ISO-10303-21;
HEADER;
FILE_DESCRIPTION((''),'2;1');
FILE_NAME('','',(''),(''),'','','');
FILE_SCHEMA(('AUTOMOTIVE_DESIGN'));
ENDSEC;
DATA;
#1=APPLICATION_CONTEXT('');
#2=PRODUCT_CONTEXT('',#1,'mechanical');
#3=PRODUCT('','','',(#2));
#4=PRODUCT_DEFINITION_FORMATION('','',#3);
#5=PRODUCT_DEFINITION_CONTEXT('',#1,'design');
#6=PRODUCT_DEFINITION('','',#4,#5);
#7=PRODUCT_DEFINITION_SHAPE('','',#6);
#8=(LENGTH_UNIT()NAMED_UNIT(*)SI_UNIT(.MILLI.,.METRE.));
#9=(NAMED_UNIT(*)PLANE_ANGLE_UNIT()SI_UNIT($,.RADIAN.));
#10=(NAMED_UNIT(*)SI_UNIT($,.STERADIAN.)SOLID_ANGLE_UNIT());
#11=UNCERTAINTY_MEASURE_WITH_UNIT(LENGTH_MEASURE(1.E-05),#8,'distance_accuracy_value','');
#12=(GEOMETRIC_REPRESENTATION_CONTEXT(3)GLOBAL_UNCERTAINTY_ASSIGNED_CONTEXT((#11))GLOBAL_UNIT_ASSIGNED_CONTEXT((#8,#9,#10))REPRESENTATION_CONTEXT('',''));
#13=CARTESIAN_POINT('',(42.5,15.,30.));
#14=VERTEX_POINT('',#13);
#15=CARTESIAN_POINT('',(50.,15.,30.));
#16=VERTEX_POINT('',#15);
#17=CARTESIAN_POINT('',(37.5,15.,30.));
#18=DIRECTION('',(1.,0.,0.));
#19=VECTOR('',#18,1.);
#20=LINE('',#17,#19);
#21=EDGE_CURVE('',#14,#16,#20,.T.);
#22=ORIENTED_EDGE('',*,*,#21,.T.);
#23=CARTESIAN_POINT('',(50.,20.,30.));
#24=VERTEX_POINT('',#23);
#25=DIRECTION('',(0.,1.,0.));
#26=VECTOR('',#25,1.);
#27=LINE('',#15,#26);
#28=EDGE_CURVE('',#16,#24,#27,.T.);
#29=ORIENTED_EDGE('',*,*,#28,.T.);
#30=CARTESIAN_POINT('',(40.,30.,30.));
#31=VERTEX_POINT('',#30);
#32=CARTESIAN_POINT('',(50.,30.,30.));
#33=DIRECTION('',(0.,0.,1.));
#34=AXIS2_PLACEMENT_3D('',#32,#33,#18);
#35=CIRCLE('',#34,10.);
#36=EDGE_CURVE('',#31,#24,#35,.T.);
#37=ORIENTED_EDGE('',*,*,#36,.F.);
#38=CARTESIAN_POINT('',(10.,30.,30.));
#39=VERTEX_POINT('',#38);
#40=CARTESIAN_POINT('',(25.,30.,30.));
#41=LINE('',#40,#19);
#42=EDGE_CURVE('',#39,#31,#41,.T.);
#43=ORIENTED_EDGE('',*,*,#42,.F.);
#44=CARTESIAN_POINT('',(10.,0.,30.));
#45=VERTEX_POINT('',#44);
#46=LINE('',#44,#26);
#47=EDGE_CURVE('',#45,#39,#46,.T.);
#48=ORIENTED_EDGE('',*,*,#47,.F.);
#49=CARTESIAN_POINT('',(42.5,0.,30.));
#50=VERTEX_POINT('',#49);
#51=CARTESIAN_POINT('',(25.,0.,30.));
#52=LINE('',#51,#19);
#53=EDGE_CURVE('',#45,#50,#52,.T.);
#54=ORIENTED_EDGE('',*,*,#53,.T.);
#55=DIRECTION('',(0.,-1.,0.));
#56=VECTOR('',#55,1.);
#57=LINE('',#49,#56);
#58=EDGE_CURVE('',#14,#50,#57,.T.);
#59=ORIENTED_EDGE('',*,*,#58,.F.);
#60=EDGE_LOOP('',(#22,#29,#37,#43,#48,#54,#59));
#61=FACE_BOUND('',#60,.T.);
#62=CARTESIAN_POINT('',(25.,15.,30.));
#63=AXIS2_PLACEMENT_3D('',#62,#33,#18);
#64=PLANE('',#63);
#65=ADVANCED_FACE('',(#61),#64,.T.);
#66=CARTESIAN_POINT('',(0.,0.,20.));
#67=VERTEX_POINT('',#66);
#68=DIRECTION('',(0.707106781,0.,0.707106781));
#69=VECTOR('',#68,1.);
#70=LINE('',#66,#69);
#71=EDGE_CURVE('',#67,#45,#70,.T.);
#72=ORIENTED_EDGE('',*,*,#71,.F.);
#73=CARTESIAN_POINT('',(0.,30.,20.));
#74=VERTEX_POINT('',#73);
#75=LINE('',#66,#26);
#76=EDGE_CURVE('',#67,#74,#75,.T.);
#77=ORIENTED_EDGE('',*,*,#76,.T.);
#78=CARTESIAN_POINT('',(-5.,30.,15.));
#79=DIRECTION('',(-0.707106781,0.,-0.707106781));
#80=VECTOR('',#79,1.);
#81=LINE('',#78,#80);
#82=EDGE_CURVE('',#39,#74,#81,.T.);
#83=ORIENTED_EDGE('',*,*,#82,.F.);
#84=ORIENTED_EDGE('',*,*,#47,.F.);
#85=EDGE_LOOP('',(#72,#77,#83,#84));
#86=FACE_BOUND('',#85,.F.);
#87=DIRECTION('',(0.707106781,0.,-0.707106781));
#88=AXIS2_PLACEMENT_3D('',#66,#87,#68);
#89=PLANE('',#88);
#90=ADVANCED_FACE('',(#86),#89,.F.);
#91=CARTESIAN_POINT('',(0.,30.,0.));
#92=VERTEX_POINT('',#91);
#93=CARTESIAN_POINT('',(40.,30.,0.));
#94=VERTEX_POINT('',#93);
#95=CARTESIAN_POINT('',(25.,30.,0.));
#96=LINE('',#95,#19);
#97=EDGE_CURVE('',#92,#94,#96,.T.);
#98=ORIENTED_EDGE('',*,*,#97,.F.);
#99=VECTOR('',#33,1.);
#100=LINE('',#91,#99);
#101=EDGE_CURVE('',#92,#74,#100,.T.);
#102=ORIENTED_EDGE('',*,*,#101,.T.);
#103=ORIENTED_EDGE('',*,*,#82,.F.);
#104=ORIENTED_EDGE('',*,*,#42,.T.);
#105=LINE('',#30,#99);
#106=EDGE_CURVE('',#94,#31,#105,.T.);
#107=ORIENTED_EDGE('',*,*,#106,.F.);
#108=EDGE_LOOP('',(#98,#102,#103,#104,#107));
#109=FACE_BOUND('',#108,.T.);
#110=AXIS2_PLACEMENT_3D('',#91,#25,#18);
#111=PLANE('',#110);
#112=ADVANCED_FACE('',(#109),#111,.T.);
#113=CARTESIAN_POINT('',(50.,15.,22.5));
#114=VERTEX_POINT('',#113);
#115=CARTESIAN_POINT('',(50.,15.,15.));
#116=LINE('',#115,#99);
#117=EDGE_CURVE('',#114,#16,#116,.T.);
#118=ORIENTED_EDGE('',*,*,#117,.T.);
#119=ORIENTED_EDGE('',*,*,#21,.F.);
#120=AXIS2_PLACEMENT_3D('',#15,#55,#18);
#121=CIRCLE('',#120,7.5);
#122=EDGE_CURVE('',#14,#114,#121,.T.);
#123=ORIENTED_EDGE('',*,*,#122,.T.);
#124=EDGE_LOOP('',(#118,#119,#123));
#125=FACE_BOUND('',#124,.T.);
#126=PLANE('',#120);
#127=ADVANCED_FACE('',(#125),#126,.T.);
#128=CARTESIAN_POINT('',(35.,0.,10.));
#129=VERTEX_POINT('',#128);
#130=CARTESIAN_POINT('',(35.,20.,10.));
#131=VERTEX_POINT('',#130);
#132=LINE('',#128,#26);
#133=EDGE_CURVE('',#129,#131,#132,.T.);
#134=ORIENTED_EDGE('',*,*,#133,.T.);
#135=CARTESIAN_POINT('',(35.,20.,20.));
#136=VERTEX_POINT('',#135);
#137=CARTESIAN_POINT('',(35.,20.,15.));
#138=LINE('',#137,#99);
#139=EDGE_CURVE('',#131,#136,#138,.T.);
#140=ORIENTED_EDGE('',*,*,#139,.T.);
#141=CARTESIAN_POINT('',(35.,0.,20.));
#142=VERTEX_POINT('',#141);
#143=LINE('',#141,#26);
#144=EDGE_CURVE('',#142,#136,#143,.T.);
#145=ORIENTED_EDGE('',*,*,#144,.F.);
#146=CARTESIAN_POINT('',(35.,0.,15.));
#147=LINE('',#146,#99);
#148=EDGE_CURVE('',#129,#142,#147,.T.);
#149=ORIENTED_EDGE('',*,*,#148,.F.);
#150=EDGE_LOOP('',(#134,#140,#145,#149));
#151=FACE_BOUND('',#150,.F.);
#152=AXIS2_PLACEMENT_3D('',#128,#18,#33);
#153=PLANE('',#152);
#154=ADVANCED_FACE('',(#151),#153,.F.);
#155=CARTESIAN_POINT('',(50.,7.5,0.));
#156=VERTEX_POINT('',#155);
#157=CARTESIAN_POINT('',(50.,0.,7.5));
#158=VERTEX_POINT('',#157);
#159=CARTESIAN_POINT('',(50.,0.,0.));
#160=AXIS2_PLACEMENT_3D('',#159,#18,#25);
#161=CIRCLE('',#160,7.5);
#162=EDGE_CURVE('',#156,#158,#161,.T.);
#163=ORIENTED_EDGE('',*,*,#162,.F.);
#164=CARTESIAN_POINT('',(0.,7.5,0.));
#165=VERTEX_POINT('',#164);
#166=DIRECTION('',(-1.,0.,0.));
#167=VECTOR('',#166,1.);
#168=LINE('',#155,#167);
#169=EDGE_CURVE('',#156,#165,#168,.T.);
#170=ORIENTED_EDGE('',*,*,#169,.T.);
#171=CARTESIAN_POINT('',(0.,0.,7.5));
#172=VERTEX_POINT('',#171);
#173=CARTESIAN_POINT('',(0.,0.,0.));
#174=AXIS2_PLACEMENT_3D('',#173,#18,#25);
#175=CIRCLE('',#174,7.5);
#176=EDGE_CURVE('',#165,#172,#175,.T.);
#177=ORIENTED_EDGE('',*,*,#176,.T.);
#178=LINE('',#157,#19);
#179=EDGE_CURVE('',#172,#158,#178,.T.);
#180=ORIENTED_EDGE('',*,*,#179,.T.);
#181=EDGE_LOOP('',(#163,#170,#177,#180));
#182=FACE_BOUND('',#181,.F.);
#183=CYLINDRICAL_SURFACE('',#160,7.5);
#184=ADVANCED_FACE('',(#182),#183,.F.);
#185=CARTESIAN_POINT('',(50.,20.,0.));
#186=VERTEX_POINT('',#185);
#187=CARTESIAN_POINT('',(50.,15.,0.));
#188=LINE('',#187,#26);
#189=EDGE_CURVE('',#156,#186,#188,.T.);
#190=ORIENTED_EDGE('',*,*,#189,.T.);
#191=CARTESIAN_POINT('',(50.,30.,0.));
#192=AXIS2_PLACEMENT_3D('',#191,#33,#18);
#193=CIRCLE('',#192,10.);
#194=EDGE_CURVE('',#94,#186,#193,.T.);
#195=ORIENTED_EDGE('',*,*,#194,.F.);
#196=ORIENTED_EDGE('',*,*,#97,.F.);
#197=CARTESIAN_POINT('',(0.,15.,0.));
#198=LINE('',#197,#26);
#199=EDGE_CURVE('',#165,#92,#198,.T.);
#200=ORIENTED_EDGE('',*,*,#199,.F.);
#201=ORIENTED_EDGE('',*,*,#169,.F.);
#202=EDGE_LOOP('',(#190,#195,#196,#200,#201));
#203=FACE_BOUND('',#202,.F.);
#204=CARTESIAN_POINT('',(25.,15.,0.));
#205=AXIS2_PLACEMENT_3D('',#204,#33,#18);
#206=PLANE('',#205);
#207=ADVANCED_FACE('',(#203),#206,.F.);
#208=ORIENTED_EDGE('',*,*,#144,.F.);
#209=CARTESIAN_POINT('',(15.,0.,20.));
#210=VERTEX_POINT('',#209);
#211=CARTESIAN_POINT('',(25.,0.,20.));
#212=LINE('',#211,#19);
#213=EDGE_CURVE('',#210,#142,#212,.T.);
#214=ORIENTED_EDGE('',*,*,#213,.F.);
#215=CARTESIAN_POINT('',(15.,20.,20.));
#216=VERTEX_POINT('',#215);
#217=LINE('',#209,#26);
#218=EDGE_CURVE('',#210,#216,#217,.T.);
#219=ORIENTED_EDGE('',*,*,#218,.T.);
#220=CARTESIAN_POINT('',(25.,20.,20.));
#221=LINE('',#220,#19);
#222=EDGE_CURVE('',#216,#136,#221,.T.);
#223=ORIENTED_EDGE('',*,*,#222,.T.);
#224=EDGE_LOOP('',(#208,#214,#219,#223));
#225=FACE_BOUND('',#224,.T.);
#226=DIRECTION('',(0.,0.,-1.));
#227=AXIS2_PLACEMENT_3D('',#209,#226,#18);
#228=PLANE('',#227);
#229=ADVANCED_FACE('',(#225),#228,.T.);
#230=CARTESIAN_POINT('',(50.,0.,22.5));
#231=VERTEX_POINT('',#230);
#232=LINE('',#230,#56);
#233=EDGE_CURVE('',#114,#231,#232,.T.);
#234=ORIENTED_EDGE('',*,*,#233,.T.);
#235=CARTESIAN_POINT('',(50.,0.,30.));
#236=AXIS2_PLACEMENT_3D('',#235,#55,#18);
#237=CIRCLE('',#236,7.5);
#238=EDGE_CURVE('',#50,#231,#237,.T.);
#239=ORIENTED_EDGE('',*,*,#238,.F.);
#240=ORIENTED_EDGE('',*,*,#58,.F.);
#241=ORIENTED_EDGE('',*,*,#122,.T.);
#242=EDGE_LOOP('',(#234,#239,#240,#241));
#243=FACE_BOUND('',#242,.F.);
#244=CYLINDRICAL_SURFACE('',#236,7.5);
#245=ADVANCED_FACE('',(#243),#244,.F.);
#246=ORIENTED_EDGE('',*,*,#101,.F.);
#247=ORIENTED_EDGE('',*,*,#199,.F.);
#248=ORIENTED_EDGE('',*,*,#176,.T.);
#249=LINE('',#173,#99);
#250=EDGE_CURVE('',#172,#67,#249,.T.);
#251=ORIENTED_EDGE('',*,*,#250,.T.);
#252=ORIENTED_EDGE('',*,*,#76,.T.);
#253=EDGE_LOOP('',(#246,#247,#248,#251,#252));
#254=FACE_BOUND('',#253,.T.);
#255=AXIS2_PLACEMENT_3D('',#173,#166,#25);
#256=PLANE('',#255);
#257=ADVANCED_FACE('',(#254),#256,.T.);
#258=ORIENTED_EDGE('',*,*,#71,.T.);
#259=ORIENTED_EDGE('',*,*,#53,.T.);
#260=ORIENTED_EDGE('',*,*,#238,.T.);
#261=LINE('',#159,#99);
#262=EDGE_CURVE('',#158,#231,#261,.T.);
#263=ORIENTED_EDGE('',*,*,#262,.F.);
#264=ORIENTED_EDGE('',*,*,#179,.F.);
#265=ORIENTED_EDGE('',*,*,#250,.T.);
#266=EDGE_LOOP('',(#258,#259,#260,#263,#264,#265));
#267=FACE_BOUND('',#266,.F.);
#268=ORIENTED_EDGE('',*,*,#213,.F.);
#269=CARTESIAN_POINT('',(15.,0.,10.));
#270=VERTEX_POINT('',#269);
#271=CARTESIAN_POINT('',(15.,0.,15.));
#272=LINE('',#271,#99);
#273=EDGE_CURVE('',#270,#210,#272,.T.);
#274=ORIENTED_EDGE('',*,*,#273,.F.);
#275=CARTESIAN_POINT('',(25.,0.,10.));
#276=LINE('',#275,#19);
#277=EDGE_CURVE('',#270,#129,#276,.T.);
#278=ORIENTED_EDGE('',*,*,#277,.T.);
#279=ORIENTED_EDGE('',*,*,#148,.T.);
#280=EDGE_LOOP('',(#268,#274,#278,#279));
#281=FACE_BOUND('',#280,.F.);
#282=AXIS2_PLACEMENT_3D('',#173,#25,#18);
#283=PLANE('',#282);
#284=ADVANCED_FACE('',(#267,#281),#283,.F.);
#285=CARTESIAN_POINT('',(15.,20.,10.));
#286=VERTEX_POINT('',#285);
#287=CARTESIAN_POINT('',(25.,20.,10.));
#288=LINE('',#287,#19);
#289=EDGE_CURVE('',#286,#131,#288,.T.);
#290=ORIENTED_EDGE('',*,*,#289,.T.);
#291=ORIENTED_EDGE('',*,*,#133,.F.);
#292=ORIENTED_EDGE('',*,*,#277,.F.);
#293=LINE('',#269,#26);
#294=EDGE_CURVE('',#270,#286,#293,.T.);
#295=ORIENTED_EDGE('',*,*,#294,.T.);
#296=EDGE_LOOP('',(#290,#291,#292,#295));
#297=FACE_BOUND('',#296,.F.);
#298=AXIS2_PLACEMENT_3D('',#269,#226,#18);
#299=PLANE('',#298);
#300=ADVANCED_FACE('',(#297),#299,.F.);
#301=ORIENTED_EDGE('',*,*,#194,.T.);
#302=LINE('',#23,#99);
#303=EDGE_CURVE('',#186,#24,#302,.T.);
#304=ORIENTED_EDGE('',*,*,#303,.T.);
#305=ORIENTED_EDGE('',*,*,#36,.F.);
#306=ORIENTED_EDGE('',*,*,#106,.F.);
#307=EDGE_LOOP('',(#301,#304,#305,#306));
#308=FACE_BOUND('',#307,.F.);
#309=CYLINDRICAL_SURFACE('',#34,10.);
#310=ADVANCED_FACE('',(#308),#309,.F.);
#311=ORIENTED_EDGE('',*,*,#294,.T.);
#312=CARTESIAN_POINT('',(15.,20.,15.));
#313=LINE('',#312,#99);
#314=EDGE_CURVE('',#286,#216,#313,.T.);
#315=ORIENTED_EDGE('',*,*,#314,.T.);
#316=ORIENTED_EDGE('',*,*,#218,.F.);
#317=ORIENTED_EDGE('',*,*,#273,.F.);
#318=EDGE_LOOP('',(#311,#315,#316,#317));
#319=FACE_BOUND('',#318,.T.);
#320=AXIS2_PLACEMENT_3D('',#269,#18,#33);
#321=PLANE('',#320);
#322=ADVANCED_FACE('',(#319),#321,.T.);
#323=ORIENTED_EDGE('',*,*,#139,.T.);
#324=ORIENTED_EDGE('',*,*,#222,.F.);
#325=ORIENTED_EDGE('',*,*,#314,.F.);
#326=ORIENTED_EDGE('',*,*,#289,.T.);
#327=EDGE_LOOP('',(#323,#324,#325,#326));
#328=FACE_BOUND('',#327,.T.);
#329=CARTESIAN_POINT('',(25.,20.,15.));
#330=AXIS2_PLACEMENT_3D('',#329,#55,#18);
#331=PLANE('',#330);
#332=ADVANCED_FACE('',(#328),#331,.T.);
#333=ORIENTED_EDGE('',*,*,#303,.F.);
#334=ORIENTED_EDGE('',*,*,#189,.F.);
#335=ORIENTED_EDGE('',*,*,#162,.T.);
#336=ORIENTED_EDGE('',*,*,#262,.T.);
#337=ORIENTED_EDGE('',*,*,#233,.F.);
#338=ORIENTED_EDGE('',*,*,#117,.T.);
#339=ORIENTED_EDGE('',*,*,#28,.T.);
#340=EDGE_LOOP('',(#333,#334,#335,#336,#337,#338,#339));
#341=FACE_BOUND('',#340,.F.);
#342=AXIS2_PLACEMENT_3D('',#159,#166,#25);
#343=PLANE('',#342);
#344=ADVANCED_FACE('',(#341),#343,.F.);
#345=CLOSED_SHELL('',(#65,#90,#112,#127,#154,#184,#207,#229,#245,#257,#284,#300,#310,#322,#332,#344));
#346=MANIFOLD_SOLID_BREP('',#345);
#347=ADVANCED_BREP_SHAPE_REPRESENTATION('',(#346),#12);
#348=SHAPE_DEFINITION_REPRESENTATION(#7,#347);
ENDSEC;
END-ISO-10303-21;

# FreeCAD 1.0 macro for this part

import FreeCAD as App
import Part
import Sketcher
Q = App.Units.Quantity


def add_polygon(sketch, points):
    """Adds a closed chain of lines whose ends are joined by coincident constraints."""
    first, n = sketch.GeometryCount, len(points)
    for a, b in zip(points, points[1:] + points[:1]):
        sketch.addGeometry(Part.LineSegment(App.Vector(*a, 0), App.Vector(*b, 0)), False)
    for i in range(n):
        sketch.addConstraint(Sketcher.Constraint("Coincident", first + i, 2, first + (i + 1) % n, 1))

doc = App.newDocument("Part")
body = doc.addObject("PartDesign::Body", "Body")

sketch1 = body.newObject("Sketcher::SketchObject", "Sketch")
sketch1.AttachmentSupport = (doc.getObject("XY_Plane"), [""])
sketch1.MapMode = "FlatFace"
add_polygon(sketch1, [(0, 30), (0, 0), (50, 0), (50, 30)])
sketch1.addConstraint(Sketcher.Constraint("Vertical", 0))
sketch1.addConstraint(Sketcher.Constraint("Horizontal", 1))
sketch1.addConstraint(Sketcher.Constraint("Vertical", 2))
sketch1.addConstraint(Sketcher.Constraint("Horizontal", 3))
sketch1.addConstraint(Sketcher.Constraint("Coincident", 0, 2, -1, 1))
sketch1.addConstraint(Sketcher.Constraint("DistanceX", 1, 1, 1, 2, Q("50 mm")))
sketch1.addConstraint(Sketcher.Constraint("DistanceY", 0, 2, 0, 1, Q("30 mm")))
pad1 = body.newObject("PartDesign::Pad", "Pad")
pad1.Profile = sketch1
pad1.Length = 30

sketch2 = body.newObject("Sketcher::SketchObject", "Sketch001")
sketch2.AttachmentSupport = (doc.getObject("XY_Plane"), [""])
sketch2.MapMode = "FlatFace"
sketch2.AttachmentOffset = App.Placement(App.Vector(0, 0, 30), App.Rotation())
sketch2.addGeometry(Part.Circle(App.Vector(50, 30, 0), App.Vector(0, 0, 1), 10), False)
sketch2.addConstraint(Sketcher.Constraint("Diameter", 0, Q("20 mm")))
sketch2.addConstraint(Sketcher.Constraint("DistanceX", -1, 1, 0, 3, Q("50 mm")))
sketch2.addConstraint(Sketcher.Constraint("DistanceY", -1, 1, 0, 3, Q("30 mm")))
pocket1 = body.newObject("PartDesign::Pocket", "Pocket")
pocket1.Profile = sketch2
pocket1.Type = "ThroughAll"

sketch3 = body.newObject("Sketcher::SketchObject", "Sketch002")
sketch3.AttachmentSupport = (doc.getObject("XZ_Plane"), [""])
sketch3.MapMode = "FlatFace"
add_polygon(sketch3, [(0, 20), (10, 30), (0, 30)])
sketch3.addConstraint(Sketcher.Constraint("Horizontal", 1))
sketch3.addConstraint(Sketcher.Constraint("Vertical", 2))
sketch3.addConstraint(Sketcher.Constraint("PointOnObject", 1, 2, -2))
sketch3.addConstraint(Sketcher.Constraint("Equal", 1, 2))
sketch3.addConstraint(Sketcher.Constraint("DistanceX", 1, 2, 1, 1, Q("10 mm")))
sketch3.addConstraint(Sketcher.Constraint("DistanceY", -1, 1, 0, 2, Q("30 mm")))
pocket2 = body.newObject("PartDesign::Pocket", "Pocket001")
pocket2.Profile = sketch3
pocket2.Type = "ThroughAll"

sketch4 = body.newObject("Sketcher::SketchObject", "Sketch003")
sketch4.AttachmentSupport = (doc.getObject("XZ_Plane"), [""])
sketch4.MapMode = "FlatFace"
add_polygon(sketch4, [(15, 20), (15, 10), (35, 10), (35, 20)])
sketch4.addConstraint(Sketcher.Constraint("Vertical", 0))
sketch4.addConstraint(Sketcher.Constraint("Horizontal", 1))
sketch4.addConstraint(Sketcher.Constraint("Vertical", 2))
sketch4.addConstraint(Sketcher.Constraint("Horizontal", 3))
sketch4.addConstraint(Sketcher.Constraint("DistanceX", 1, 1, 1, 2, Q("20 mm")))
sketch4.addConstraint(Sketcher.Constraint("DistanceY", 0, 2, 0, 1, Q("10 mm")))
sketch4.addConstraint(Sketcher.Constraint("DistanceX", -1, 1, 0, 2, Q("15 mm")))
sketch4.addConstraint(Sketcher.Constraint("DistanceY", -1, 1, 0, 2, Q("10 mm")))
pocket3 = body.newObject("PartDesign::Pocket", "Pocket002")
pocket3.Profile = sketch4
pocket3.Length = 20

sketch5 = body.newObject("Sketcher::SketchObject", "Sketch004")
sketch5.AttachmentSupport = (doc.getObject("YZ_Plane"), [""])
sketch5.MapMode = "FlatFace"
sketch5.AttachmentOffset = App.Placement(App.Vector(0, 0, 50), App.Rotation())
sketch5.addGeometry(Part.Circle(App.Vector(0, 0, 0), App.Vector(0, 0, 1), 8), False)
sketch5.addConstraint(Sketcher.Constraint("Coincident", 0, 3, -1, 1))
sketch5.addConstraint(Sketcher.Constraint("Diameter", 0, Q("15 mm")))
pocket4 = body.newObject("PartDesign::Pocket", "Pocket003")
pocket4.Profile = sketch5
pocket4.Type = "ThroughAll"

sketch6 = body.newObject("Sketcher::SketchObject", "Sketch005")
sketch6.AttachmentSupport = (doc.getObject("XZ_Plane"), [""])
sketch6.MapMode = "FlatFace"
sketch6.addGeometry(Part.Circle(App.Vector(50, 30, 0), App.Vector(0, 0, 1), 8), False)
sketch6.addConstraint(Sketcher.Constraint("Diameter", 0, Q("15 mm")))
sketch6.addConstraint(Sketcher.Constraint("DistanceX", -1, 1, 0, 3, Q("50 mm")))
sketch6.addConstraint(Sketcher.Constraint("DistanceY", -1, 1, 0, 3, Q("30 mm")))
pocket5 = body.newObject("PartDesign::Pocket", "Pocket004")
pocket5.Profile = sketch6
pocket5.Length = 15

doc.recompute()
